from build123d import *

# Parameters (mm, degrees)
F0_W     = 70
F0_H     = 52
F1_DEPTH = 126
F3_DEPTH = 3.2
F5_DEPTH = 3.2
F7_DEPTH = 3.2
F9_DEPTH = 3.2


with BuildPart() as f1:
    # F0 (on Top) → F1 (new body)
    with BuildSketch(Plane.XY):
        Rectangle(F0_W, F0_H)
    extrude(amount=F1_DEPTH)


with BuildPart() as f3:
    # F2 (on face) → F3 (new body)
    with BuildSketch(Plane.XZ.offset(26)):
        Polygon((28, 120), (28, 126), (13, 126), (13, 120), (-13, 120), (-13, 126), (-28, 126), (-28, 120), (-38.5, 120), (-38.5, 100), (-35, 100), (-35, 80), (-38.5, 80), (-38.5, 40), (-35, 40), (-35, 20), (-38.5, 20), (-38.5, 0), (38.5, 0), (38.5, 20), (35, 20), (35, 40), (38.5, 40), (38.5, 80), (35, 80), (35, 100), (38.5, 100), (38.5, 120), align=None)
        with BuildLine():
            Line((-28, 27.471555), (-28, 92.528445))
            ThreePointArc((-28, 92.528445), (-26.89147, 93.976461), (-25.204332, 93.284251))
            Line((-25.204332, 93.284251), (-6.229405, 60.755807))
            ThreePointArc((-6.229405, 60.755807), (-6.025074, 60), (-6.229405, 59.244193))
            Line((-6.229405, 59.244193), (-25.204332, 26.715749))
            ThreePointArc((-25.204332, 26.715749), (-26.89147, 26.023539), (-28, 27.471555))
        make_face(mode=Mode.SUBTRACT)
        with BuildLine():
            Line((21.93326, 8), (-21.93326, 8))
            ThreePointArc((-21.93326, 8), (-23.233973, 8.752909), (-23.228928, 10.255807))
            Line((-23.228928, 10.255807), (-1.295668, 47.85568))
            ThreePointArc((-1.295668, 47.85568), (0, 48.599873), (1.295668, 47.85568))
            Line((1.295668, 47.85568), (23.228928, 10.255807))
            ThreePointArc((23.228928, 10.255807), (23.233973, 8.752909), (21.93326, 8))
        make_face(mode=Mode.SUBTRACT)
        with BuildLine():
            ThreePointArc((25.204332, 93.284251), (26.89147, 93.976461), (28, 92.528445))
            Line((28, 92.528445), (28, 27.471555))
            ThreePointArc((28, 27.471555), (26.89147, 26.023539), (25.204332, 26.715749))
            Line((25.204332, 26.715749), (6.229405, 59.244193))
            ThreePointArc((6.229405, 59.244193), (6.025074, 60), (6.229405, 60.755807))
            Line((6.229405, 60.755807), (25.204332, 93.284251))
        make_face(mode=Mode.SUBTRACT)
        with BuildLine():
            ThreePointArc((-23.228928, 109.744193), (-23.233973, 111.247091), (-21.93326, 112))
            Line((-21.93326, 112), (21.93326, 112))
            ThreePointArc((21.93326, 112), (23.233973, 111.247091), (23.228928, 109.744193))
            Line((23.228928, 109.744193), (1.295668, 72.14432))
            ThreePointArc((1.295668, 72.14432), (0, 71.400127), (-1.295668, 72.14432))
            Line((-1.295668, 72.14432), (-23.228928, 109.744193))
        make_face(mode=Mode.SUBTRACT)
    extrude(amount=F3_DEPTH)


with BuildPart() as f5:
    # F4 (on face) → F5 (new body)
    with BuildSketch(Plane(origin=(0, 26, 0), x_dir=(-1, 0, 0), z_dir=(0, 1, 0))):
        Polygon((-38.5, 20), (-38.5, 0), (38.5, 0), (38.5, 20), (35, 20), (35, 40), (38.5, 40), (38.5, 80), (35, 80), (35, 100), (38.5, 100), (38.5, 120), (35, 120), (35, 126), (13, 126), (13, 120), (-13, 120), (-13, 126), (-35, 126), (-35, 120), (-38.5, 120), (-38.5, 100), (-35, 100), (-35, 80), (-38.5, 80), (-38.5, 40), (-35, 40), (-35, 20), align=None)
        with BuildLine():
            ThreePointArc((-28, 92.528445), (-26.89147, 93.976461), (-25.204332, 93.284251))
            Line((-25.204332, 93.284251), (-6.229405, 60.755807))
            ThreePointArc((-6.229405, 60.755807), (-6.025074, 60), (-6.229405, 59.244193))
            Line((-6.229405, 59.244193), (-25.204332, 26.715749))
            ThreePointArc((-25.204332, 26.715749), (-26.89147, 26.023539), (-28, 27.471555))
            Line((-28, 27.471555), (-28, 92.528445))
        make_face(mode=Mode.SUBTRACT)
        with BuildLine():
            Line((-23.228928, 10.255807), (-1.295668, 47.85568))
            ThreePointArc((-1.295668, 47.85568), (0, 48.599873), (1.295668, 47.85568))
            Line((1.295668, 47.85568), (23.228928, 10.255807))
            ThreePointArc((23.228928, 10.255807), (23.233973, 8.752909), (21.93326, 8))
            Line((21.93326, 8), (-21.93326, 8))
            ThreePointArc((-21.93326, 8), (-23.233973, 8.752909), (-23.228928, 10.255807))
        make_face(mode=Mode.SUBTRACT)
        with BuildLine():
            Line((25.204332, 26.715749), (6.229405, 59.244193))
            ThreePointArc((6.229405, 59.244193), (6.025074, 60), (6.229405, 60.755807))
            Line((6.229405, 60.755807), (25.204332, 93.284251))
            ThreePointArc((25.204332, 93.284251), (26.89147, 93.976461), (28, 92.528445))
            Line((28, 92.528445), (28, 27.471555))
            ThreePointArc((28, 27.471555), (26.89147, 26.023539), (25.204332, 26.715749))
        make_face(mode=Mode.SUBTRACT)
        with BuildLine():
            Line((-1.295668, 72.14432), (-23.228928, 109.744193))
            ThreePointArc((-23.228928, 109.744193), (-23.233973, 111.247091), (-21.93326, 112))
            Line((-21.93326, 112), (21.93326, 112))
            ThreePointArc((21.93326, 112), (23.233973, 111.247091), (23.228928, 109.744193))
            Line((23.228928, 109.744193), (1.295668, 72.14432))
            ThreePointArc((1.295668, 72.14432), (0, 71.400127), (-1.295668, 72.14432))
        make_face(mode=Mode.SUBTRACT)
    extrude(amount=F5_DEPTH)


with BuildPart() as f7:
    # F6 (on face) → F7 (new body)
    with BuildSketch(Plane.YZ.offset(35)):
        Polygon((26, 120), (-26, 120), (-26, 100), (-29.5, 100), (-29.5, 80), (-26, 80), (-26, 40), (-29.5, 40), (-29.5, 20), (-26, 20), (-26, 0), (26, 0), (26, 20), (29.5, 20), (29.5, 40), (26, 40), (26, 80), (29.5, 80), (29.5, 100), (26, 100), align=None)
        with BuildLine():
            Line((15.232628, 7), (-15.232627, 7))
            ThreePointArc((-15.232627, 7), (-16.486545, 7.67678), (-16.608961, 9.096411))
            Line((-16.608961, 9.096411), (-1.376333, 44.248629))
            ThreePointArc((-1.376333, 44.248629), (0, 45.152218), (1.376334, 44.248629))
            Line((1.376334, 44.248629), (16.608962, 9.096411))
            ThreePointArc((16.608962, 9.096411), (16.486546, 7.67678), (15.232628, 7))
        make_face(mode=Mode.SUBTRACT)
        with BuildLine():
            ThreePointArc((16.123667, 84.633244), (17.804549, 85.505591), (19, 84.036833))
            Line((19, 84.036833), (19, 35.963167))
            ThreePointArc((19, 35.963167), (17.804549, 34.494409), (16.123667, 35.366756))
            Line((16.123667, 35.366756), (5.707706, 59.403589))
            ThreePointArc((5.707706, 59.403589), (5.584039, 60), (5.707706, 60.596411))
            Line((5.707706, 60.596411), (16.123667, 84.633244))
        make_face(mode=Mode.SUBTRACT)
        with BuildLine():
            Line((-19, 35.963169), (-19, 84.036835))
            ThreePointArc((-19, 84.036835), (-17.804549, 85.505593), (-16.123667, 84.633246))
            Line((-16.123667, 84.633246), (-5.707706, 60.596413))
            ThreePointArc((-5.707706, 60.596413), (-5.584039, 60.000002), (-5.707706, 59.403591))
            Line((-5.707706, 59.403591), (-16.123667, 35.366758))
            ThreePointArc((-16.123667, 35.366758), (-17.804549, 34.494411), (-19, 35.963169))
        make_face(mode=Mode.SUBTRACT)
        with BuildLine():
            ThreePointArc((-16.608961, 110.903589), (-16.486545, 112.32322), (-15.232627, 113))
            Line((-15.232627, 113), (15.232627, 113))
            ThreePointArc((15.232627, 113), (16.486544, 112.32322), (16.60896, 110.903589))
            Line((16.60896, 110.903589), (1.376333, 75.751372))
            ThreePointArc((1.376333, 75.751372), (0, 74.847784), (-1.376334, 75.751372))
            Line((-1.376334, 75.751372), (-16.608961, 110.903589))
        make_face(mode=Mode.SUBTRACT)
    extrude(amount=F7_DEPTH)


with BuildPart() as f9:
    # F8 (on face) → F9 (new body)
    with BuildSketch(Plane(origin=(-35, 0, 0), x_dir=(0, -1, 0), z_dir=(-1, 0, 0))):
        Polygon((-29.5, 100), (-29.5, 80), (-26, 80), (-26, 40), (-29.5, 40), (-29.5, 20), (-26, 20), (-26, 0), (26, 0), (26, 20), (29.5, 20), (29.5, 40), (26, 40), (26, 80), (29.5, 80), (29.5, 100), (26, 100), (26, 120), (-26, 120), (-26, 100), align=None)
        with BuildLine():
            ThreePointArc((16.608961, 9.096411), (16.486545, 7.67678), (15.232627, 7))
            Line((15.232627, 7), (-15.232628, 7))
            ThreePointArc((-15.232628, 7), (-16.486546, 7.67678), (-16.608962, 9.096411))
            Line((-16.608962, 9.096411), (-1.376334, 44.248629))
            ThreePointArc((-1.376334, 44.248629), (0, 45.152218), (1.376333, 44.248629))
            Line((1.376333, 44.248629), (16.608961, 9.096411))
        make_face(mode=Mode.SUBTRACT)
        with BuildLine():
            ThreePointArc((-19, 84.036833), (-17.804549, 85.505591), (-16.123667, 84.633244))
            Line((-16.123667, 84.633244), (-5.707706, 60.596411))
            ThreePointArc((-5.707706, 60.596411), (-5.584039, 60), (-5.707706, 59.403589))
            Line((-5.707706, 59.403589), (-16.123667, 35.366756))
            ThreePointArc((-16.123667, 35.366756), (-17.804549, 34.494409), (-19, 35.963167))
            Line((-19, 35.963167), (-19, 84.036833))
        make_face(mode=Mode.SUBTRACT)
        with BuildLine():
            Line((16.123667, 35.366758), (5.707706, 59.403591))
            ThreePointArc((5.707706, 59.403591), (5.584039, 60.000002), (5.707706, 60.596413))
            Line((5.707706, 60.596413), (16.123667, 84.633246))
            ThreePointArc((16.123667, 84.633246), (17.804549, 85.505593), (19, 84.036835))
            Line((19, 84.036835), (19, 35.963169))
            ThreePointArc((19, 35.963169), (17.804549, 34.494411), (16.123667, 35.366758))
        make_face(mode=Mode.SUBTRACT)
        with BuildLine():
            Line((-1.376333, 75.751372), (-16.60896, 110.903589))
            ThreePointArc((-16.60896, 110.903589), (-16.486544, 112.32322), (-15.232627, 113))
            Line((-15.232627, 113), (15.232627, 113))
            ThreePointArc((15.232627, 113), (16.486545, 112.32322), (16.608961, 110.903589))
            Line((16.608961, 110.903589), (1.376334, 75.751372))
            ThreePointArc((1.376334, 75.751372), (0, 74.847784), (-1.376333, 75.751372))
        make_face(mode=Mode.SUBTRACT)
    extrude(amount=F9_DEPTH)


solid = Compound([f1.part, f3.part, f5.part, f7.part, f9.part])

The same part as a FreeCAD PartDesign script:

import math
import FreeCAD as App
import Part
import Sketcher
from FreeCAD import Vector
Q = App.Units.Quantity


def add_polygon(sketch, points):
    """Adds a closed chain of lines whose ends are joined by coincident constraints."""
    first, n = sketch.GeometryCount, len(points)
    for a, b in zip(points, points[1:] + points[:1]):
        sketch.addGeometry(Part.LineSegment(App.Vector(*a, 0), App.Vector(*b, 0)), False)
    for i in range(n):
        sketch.addConstraint(Sketcher.Constraint("Coincident", first + i, 2, first + (i + 1) % n, 1))

doc = App.newDocument("Part")
params = doc.addObject("Spreadsheet::Sheet", "Params")
for row, (alias, value) in enumerate([
    ("sketch1_width", "70 mm"),
    ("sketch1_height", "52 mm"),
    ("pad1_length", "126 mm"),
    ("sketch2_radius", "1.5 mm"),
    ("sketch2_width", "15 mm"),
    ("sketch2_width2", "26 mm"),
    ("sketch2_width3", "77 mm"),
    ("sketch2_height", "6 mm"),
    ("pad2_length", "3.2 mm"),
    ("sketch3_radius", "1.5 mm"),
    ("sketch3_width", "77 mm"),
    ("sketch3_width2", "22 mm"),
    ("sketch3_width3", "26 mm"),
    ("sketch3_height", "20 mm"),
    ("pad3_length", "3.2 mm"),
    ("sketch4_radius", "1.5 mm"),
    ("sketch4_width", "52 mm"),
    ("sketch4_height", "20 mm"),
    ("sketch4_height2", "40 mm"),
    ("sketch4_width2", "3.5 mm"),
    ("pad4_length", "3.2 mm"),
    ("sketch5_radius", "1.5 mm"),
    ("sketch5_width", "52 mm"),
    ("sketch5_height", "20 mm"),
    ("sketch5_height2", "40 mm"),
    ("sketch5_width2", "3.5 mm"),
    ("pad5_length", "3.2 mm"),
], start=1):
    params.set(f"A{row}", alias)
    params.set(f"B{row}", "=" + value)
    params.setAlias(f"B{row}", alias)

body = doc.addObject("PartDesign::Body", "Body")

# Sketch on XY plane
sketch1 = body.newObject("Sketcher::SketchObject", "Sketch")
sketch1.AttachmentSupport = (doc.getObject("XY_Plane"), [""])
sketch1.MapMode = "FlatFace"
add_polygon(sketch1, [(-35, 26), (-35, -26), (35, -26), (35, 26)])  # lines 0-3
sketch1.addConstraint(Sketcher.Constraint("Vertical", 0))
sketch1.addConstraint(Sketcher.Constraint("Horizontal", 1))
sketch1.addConstraint(Sketcher.Constraint("Vertical", 2))
sketch1.addConstraint(Sketcher.Constraint("Horizontal", 3))
sketch1.addConstraint(Sketcher.Constraint("Symmetric", 0, 2, 2, 2, -1, 1))
sketch1.addConstraint(Sketcher.Constraint("DistanceX", 1, 1, 1, 2, Q("70 mm")))
sketch1.addConstraint(Sketcher.Constraint("DistanceY", 0, 2, 0, 1, Q("52 mm")))
sketch1.setExpression("Constraints[9]", "Params.sketch1_width")
sketch1.setExpression("Constraints[10]", "Params.sketch1_height")
pad1 = body.newObject("PartDesign::Pad", "Pad")
pad1.Profile = sketch1
pad1.setExpression("Length", "Params.pad1_length")
body2 = doc.addObject("PartDesign::Body", "Body001")

# Sketch on XZ plane
sketch2 = body2.newObject("Sketcher::SketchObject", "Sketch001")
sketch2.AttachmentSupport = (doc.getObject("XZ_Plane001"), [""])
sketch2.MapMode = "FlatFace"
sketch2.AttachmentOffset = App.Placement(Vector(0, 0, 26), App.Rotation())
add_polygon(sketch2, [(28, 120), (28, 126), (13, 126), (13, 120), (-13, 120), (-13, 126), (-28, 126), (-28, 120), (-38.5, 120), (-38.5, 100), (-35, 100), (-35, 80), (-38.5, 80), (-38.5, 40), (-35, 40), (-35, 20), (-38.5, 20), (-38.5, 0), (38.5, 0), (38.5, 20), (35, 20), (35, 40), (38.5, 40), (38.5, 80), (35, 80), (35, 100), (38.5, 100), (38.5, 120)])  # lines 0-27
sketch2.addGeometry(Part.ArcOfCircle(Part.Circle(Vector(-26.5, 27.5, 0), Vector(0, 0, 1), 1.5), math.radians(-180), math.radians(-30)), False)  # 28
sketch2.addGeometry(Part.LineSegment(Vector(-28, 27.5, 0), Vector(-28, 92.5, 0)), False)  # 29
sketch2.addGeometry(Part.ArcOfCircle(Part.Circle(Vector(-26.5, 92.5, 0), Vector(0, 0, 1), 1.5), math.radians(30), math.radians(180)), False)  # 30
sketch2.addGeometry(Part.LineSegment(Vector(-25.2, 93.3, 0), Vector(-6.2, 60.8, 0)), False)  # 31
sketch2.addGeometry(Part.ArcOfCircle(Part.Circle(Vector(-7.5, 60, 0), Vector(0, 0, 1), 1.5), math.radians(-30), math.radians(30)), False)  # 32
sketch2.addGeometry(Part.LineSegment(Vector(-6.2, 59.2, 0), Vector(-25.2, 26.7, 0)), False)  # 33
sketch2.addGeometry(Part.ArcOfCircle(Part.Circle(Vector(21.9, 9.5, 0), Vector(0, 0, 1), 1.5), math.radians(-90), math.radians(30)), False)  # 34
sketch2.addGeometry(Part.LineSegment(Vector(21.9, 8, 0), Vector(-21.9, 8, 0)), False)  # 35
sketch2.addGeometry(Part.ArcOfCircle(Part.Circle(Vector(-21.9, 9.5, 0), Vector(0, 0, 1), 1.5), math.radians(150), math.radians(270)), False)  # 36
sketch2.addGeometry(Part.LineSegment(Vector(-23.2, 10.3, 0), Vector(-1.3, 47.9, 0)), False)  # 37
sketch2.addGeometry(Part.ArcOfCircle(Part.Circle(Vector(0, 47.1, 0), Vector(0, 0, 1), 1.5), math.radians(30), math.radians(150)), False)  # 38
sketch2.addGeometry(Part.LineSegment(Vector(1.3, 47.9, 0), Vector(23.2, 10.3, 0)), False)  # 39
sketch2.addGeometry(Part.LineSegment(Vector(6.2, 60.8, 0), Vector(25.2, 93.3, 0)), False)  # 40
sketch2.addGeometry(Part.ArcOfCircle(Part.Circle(Vector(26.5, 92.5, 0), Vector(0, 0, 1), 1.5), math.radians(0), math.radians(150)), False)  # 41
sketch2.addGeometry(Part.LineSegment(Vector(28, 92.5, 0), Vector(28, 27.5, 0)), False)  # 42
sketch2.addGeometry(Part.ArcOfCircle(Part.Circle(Vector(26.5, 27.5, 0), Vector(0, 0, 1), 1.5), math.radians(-150), math.radians(0)), False)  # 43
sketch2.addGeometry(Part.LineSegment(Vector(25.2, 26.7, 0), Vector(6.2, 59.2, 0)), False)  # 44
sketch2.addGeometry(Part.ArcOfCircle(Part.Circle(Vector(7.5, 60, 0), Vector(0, 0, 1), 1.5), math.radians(150), math.radians(210)), False)  # 45
sketch2.addGeometry(Part.LineSegment(Vector(-1.3, 72.1, 0), Vector(-23.2, 109.7, 0)), False)  # 46
sketch2.addGeometry(Part.ArcOfCircle(Part.Circle(Vector(-21.9, 110.5, 0), Vector(0, 0, 1), 1.5), math.radians(90), math.radians(210)), False)  # 47
sketch2.addGeometry(Part.LineSegment(Vector(-21.9, 112, 0), Vector(21.9, 112, 0)), False)  # 48
sketch2.addGeometry(Part.ArcOfCircle(Part.Circle(Vector(21.9, 110.5, 0), Vector(0, 0, 1), 1.5), math.radians(-30), math.radians(90)), False)  # 49
sketch2.addGeometry(Part.LineSegment(Vector(23.2, 109.7, 0), Vector(1.3, 72.1, 0)), False)  # 50
sketch2.addGeometry(Part.ArcOfCircle(Part.Circle(Vector(0, 72.9, 0), Vector(0, 0, 1), 1.5), math.radians(-150), math.radians(-30)), False)  # 51
sketch2.addConstraint(Sketcher.Constraint("Tangent", 28, 1, 29, 1))
sketch2.addConstraint(Sketcher.Constraint("Tangent", 29, 2, 30, 2))
sketch2.addConstraint(Sketcher.Constraint("Tangent", 30, 1, 31, 1))
sketch2.addConstraint(Sketcher.Constraint("Tangent", 31, 2, 32, 2))
sketch2.addConstraint(Sketcher.Constraint("Tangent", 32, 1, 33, 1))
sketch2.addConstraint(Sketcher.Constraint("Tangent", 33, 2, 28, 2))
sketch2.addConstraint(Sketcher.Constraint("Tangent", 34, 1, 35, 1))
sketch2.addConstraint(Sketcher.Constraint("Tangent", 35, 2, 36, 2))
sketch2.addConstraint(Sketcher.Constraint("Tangent", 36, 1, 37, 1))
sketch2.addConstraint(Sketcher.Constraint("Tangent", 37, 2, 38, 2))
sketch2.addConstraint(Sketcher.Constraint("Tangent", 38, 1, 39, 1))
sketch2.addConstraint(Sketcher.Constraint("Tangent", 39, 2, 34, 2))
sketch2.addConstraint(Sketcher.Constraint("Tangent", 40, 2, 41, 2))
sketch2.addConstraint(Sketcher.Constraint("Tangent", 41, 1, 42, 1))
sketch2.addConstraint(Sketcher.Constraint("Tangent", 42, 2, 43, 2))
sketch2.addConstraint(Sketcher.Constraint("Tangent", 43, 1, 44, 1))
sketch2.addConstraint(Sketcher.Constraint("Tangent", 44, 2, 45, 2))
sketch2.addConstraint(Sketcher.Constraint("Tangent", 45, 1, 40, 1))
sketch2.addConstraint(Sketcher.Constraint("Tangent", 46, 2, 47, 2))
sketch2.addConstraint(Sketcher.Constraint("Tangent", 47, 1, 48, 1))
sketch2.addConstraint(Sketcher.Constraint("Tangent", 48, 2, 49, 2))
sketch2.addConstraint(Sketcher.Constraint("Tangent", 49, 1, 50, 1))
sketch2.addConstraint(Sketcher.Constraint("Tangent", 50, 2, 51, 2))
sketch2.addConstraint(Sketcher.Constraint("Tangent", 51, 1, 46, 1))
sketch2.addConstraint(Sketcher.Constraint("Vertical", 0))
sketch2.addConstraint(Sketcher.Constraint("Horizontal", 1))
sketch2.addConstraint(Sketcher.Constraint("Vertical", 2))
sketch2.addConstraint(Sketcher.Constraint("Horizontal", 3))
sketch2.addConstraint(Sketcher.Constraint("Vertical", 4))
sketch2.addConstraint(Sketcher.Constraint("Horizontal", 5))
sketch2.addConstraint(Sketcher.Constraint("Vertical", 6))
sketch2.addConstraint(Sketcher.Constraint("Horizontal", 7))
sketch2.addConstraint(Sketcher.Constraint("Vertical", 8))
sketch2.addConstraint(Sketcher.Constraint("Horizontal", 9))
sketch2.addConstraint(Sketcher.Constraint("Vertical", 10))
sketch2.addConstraint(Sketcher.Constraint("Horizontal", 11))
sketch2.addConstraint(Sketcher.Constraint("Vertical", 12))
sketch2.addConstraint(Sketcher.Constraint("Horizontal", 13))
sketch2.addConstraint(Sketcher.Constraint("Vertical", 14))
sketch2.addConstraint(Sketcher.Constraint("Horizontal", 15))
sketch2.addConstraint(Sketcher.Constraint("Vertical", 16))
sketch2.addConstraint(Sketcher.Constraint("Horizontal", 17))
sketch2.addConstraint(Sketcher.Constraint("Vertical", 18))
sketch2.addConstraint(Sketcher.Constraint("Horizontal", 19))
sketch2.addConstraint(Sketcher.Constraint("Vertical", 20))
sketch2.addConstraint(Sketcher.Constraint("Horizontal", 21))
sketch2.addConstraint(Sketcher.Constraint("Vertical", 22))
sketch2.addConstraint(Sketcher.Constraint("Horizontal", 23))
sketch2.addConstraint(Sketcher.Constraint("Vertical", 24))
sketch2.addConstraint(Sketcher.Constraint("Horizontal", 25))
sketch2.addConstraint(Sketcher.Constraint("Vertical", 26))
sketch2.addConstraint(Sketcher.Constraint("Horizontal", 27))
sketch2.addConstraint(Sketcher.Constraint("Vertical", 29))
sketch2.addConstraint(Sketcher.Constraint("Horizontal", 35))
sketch2.addConstraint(Sketcher.Constraint("Vertical", 42))
sketch2.addConstraint(Sketcher.Constraint("Horizontal", 48))
sketch2.addConstraint(Sketcher.Constraint("Equal", 28, 30))
sketch2.addConstraint(Sketcher.Constraint("Equal", 30, 34))
sketch2.addConstraint(Sketcher.Constraint("Equal", 34, 36))
sketch2.addConstraint(Sketcher.Constraint("Equal", 36, 38))
sketch2.addConstraint(Sketcher.Constraint("Equal", 38, 41))
sketch2.addConstraint(Sketcher.Constraint("Equal", 41, 43))
sketch2.addConstraint(Sketcher.Constraint("Equal", 32, 45))
sketch2.addConstraint(Sketcher.Constraint("Equal", 43, 47))
sketch2.addConstraint(Sketcher.Constraint("Equal", 47, 49))
sketch2.addConstraint(Sketcher.Constraint("Equal", 49, 51))
sketch2.addConstraint(Sketcher.Constraint("Symmetric", 16, 2, 17, 2, -1, 1))
sketch2.addConstraint(Sketcher.Constraint("Symmetric", 30, 3, 41, 3, -2))
sketch2.addConstraint(Sketcher.Constraint("Symmetric", 32, 3, 45, 3, -2))
sketch2.addConstraint(Sketcher.Constraint("Symmetric", 1, 2, 4, 2, -2))
sketch2.addConstraint(Sketcher.Constraint("Symmetric", 14, 2, 19, 2, -2))
sketch2.addConstraint(Sketcher.Constraint("Symmetric", 12, 2, 21, 2, -2))
sketch2.addConstraint(Sketcher.Constraint("Symmetric", 10, 2, 23, 2, -2))
sketch2.addConstraint(Sketcher.Constraint("Symmetric", 8, 2, 25, 2, -2))
sketch2.addConstraint(Sketcher.Constraint("Symmetric", 6, 2, 27, 2, -2))
sketch2.addConstraint(Sketcher.Constraint("Symmetric", 37, 2, 38, 1, -2))
sketch2.addConstraint(Sketcher.Constraint("Symmetric", 46, 2, 49, 1, -2))
sketch2.addConstraint(Sketcher.Constraint("Parallel", 33, 37))
sketch2.addConstraint(Sketcher.Constraint("Parallel", 31, 39))
sketch2.addConstraint(Sketcher.Constraint("Parallel", 39, 44))
sketch2.addConstraint(Sketcher.Constraint("Parallel", 44, 46))
sketch2.addConstraint(Sketcher.Constraint("Horizontal", 3, 2, 6, 2))
sketch2.addConstraint(Sketcher.Constraint("Vertical", 36, 3, 47, 3))
sketch2.addConstraint(Sketcher.Constraint("Vertical", 8, 2, 11, 2))
sketch2.addConstraint(Sketcher.Constraint("Vertical", 10, 2, 13, 2))
sketch2.addConstraint(Sketcher.Constraint("Vertical", 12, 2, 15, 2))
sketch2.addConstraint(Sketcher.Constraint("Vertical", 6, 2, 28, 1))
sketch2.addConstraint(Sketcher.Constraint("Equal", 8, 10))
sketch2.addConstraint(Sketcher.Constraint("Equal", 10, 14))
sketch2.addConstraint(Sketcher.Constraint("Equal", 14, 16))
sketch2.addConstraint(Sketcher.Constraint("Radius", 28, Q("1.5 mm")))
sketch2.addConstraint(Sketcher.Constraint("DistanceX", 1, 2, 1, 1, Q("15 mm")))
sketch2.addConstraint(Sketcher.Constraint("DistanceX", 3, 2, 3, 1, Q("26 mm")))
sketch2.addConstraint(Sketcher.Constraint("DistanceX", 17, 1, 17, 2, Q("77 mm")))
sketch2.addConstraint(Sketcher.Constraint("DistanceY", 0, 1, 0, 2, Q("6 mm")))
sketch2.addConstraint(Sketcher.Constraint("DistanceY", 8, 2, 8, 1, Q("20 mm")))
sketch2.addConstraint(Sketcher.Constraint("DistanceY", 12, 2, 12, 1, Q("40 mm")))
sketch2.addConstraint(Sketcher.Constraint("DistanceX", 9, 1, 9, 2, Q("3.5 mm")))
sketch2.addConstraint(Sketcher.Constraint("DistanceY", -1, 1, 32, 3, Q("60 mm")))
sketch2.addConstraint(Sketcher.Constraint("DistanceY", -1, 1, 34, 1, Q("8 mm")))
sketch2.addConstraint(Sketcher.Constraint("DistanceY", -1, 1, 47, 1, Q("112 mm")))
sketch2.addConstraint(Sketcher.Constraint("Radius", 32, Q("1.500006 mm")))
sketch2.addConstraint(Sketcher.Constraint("Distance", 31, Q("37.6583 mm")))
sketch2.addConstraint(Sketcher.Constraint("DistanceX", 35, 2, 35, 1, Q("43.86652 mm")))
sketch2.addConstraint(Sketcher.Constraint("DistanceY", 29, 1, 29, 2, Q("65.05689 mm")))
sketch2.setExpression("Constraints[118]", "Params.sketch2_radius")
sketch2.setExpression("Constraints[119]", "Params.sketch2_width")
sketch2.setExpression("Constraints[120]", "Params.sketch2_width2")
sketch2.setExpression("Constraints[121]", "Params.sketch2_width3")
sketch2.setExpression("Constraints[122]", "Params.sketch2_height")
pad2 = body2.newObject("PartDesign::Pad", "Pad001")
pad2.Profile = sketch2
pad2.setExpression("Length", "Params.pad2_length")
body3 = doc.addObject("PartDesign::Body", "Body002")

# Sketch on XZ plane
sketch3 = body3.newObject("Sketcher::SketchObject", "Sketch002")
sketch3.AttachmentSupport = (doc.getObject("XZ_Plane002"), [""])
sketch3.MapMode = "FlatFace"
sketch3.AttachmentOffset = App.Placement(Vector(0, 0, -26), App.Rotation())
add_polygon(sketch3, [(38.5, 20), (38.5, 0), (-38.5, 0), (-38.5, 20), (-35, 20), (-35, 40), (-38.5, 40), (-38.5, 80), (-35, 80), (-35, 100), (-38.5, 100), (-38.5, 120), (-35, 120), (-35, 126), (-13, 126), (-13, 120), (13, 120), (13, 126), (35, 126), (35, 120), (38.5, 120), (38.5, 100), (35, 100), (35, 80), (38.5, 80), (38.5, 40), (35, 40), (35, 20)])  # lines 0-27
sketch3.addGeometry(Part.LineSegment(Vector(28, 27.5, 0), Vector(28, 92.5, 0)), False)  # 28
sketch3.addGeometry(Part.ArcOfCircle(Part.Circle(Vector(26.5, 92.5, 0), Vector(0, 0, 1), 1.5), math.radians(0), math.radians(150)), False)  # 29
sketch3.addGeometry(Part.LineSegment(Vector(25.2, 93.3, 0), Vector(6.2, 60.8, 0)), False)  # 30
sketch3.addGeometry(Part.ArcOfCircle(Part.Circle(Vector(7.5, 60, 0), Vector(0, 0, 1), 1.5), math.radians(150), math.radians(210)), False)  # 31
sketch3.addGeometry(Part.LineSegment(Vector(6.2, 59.2, 0), Vector(25.2, 26.7, 0)), False)  # 32
sketch3.addGeometry(Part.ArcOfCircle(Part.Circle(Vector(26.5, 27.5, 0), Vector(0, 0, 1), 1.5), math.radians(-150), math.radians(0)), False)  # 33
sketch3.addGeometry(Part.ArcOfCircle(Part.Circle(Vector(21.9, 9.5, 0), Vector(0, 0, 1), 1.5), math.radians(-90), math.radians(30)), False)  # 34
sketch3.addGeometry(Part.LineSegment(Vector(23.2, 10.3, 0), Vector(1.3, 47.9, 0)), False)  # 35
sketch3.addGeometry(Part.ArcOfCircle(Part.Circle(Vector(0, 47.1, 0), Vector(0, 0, 1), 1.5), math.radians(30), math.radians(150)), False)  # 36
sketch3.addGeometry(Part.LineSegment(Vector(-1.3, 47.9, 0), Vector(-23.2, 10.3, 0)), False)  # 37
sketch3.addGeometry(Part.ArcOfCircle(Part.Circle(Vector(-21.9, 9.5, 0), Vector(0, 0, 1), 1.5), math.radians(150), math.radians(270)), False)  # 38
sketch3.addGeometry(Part.LineSegment(Vector(-21.9, 8, 0), Vector(21.9, 8, 0)), False)  # 39
sketch3.addGeometry(Part.ArcOfCircle(Part.Circle(Vector(-26.5, 27.5, 0), Vector(0, 0, 1), 1.5), math.radians(-180), math.radians(-30)), False)  # 40
sketch3.addGeometry(Part.LineSegment(Vector(-25.2, 26.7, 0), Vector(-6.2, 59.2, 0)), False)  # 41
sketch3.addGeometry(Part.ArcOfCircle(Part.Circle(Vector(-7.5, 60, 0), Vector(0, 0, 1), 1.5), math.radians(-30), math.radians(30)), False)  # 42
sketch3.addGeometry(Part.LineSegment(Vector(-6.2, 60.8, 0), Vector(-25.2, 93.3, 0)), False)  # 43
sketch3.addGeometry(Part.ArcOfCircle(Part.Circle(Vector(-26.5, 92.5, 0), Vector(0, 0, 1), 1.5), math.radians(30), math.radians(180)), False)  # 44
sketch3.addGeometry(Part.LineSegment(Vector(-28, 92.5, 0), Vector(-28, 27.5, 0)), False)  # 45
sketch3.addGeometry(Part.ArcOfCircle(Part.Circle(Vector(0, 72.9, 0), Vector(0, 0, 1), 1.5), math.radians(-150), math.radians(-30)), False)  # 46
sketch3.addGeometry(Part.LineSegment(Vector(1.3, 72.1, 0), Vector(23.2, 109.7, 0)), False)  # 47
sketch3.addGeometry(Part.ArcOfCircle(Part.Circle(Vector(21.9, 110.5, 0), Vector(0, 0, 1), 1.5), math.radians(-30), math.radians(90)), False)  # 48
sketch3.addGeometry(Part.LineSegment(Vector(21.9, 112, 0), Vector(-21.9, 112, 0)), False)  # 49
sketch3.addGeometry(Part.ArcOfCircle(Part.Circle(Vector(-21.9, 110.5, 0), Vector(0, 0, 1), 1.5), math.radians(90), math.radians(210)), False)  # 50
sketch3.addGeometry(Part.LineSegment(Vector(-23.2, 109.7, 0), Vector(-1.3, 72.1, 0)), False)  # 51
sketch3.addConstraint(Sketcher.Constraint("Tangent", 28, 2, 29, 1))
sketch3.addConstraint(Sketcher.Constraint("Tangent", 29, 2, 30, 1))
sketch3.addConstraint(Sketcher.Constraint("Tangent", 30, 2, 31, 1))
sketch3.addConstraint(Sketcher.Constraint("Tangent", 31, 2, 32, 1))
sketch3.addConstraint(Sketcher.Constraint("Tangent", 32, 2, 33, 1))
sketch3.addConstraint(Sketcher.Constraint("Tangent", 33, 2, 28, 1))
sketch3.addConstraint(Sketcher.Constraint("Tangent", 34, 2, 35, 1))
sketch3.addConstraint(Sketcher.Constraint("Tangent", 35, 2, 36, 1))
sketch3.addConstraint(Sketcher.Constraint("Tangent", 36, 2, 37, 1))
sketch3.addConstraint(Sketcher.Constraint("Tangent", 37, 2, 38, 1))
sketch3.addConstraint(Sketcher.Constraint("Tangent", 38, 2, 39, 1))
sketch3.addConstraint(Sketcher.Constraint("Tangent", 39, 2, 34, 1))
sketch3.addConstraint(Sketcher.Constraint("Tangent", 40, 2, 41, 1))
sketch3.addConstraint(Sketcher.Constraint("Tangent", 41, 2, 42, 1))
sketch3.addConstraint(Sketcher.Constraint("Tangent", 42, 2, 43, 1))
sketch3.addConstraint(Sketcher.Constraint("Tangent", 43, 2, 44, 1))
sketch3.addConstraint(Sketcher.Constraint("Tangent", 44, 2, 45, 1))
sketch3.addConstraint(Sketcher.Constraint("Tangent", 45, 2, 40, 1))
sketch3.addConstraint(Sketcher.Constraint("Tangent", 46, 2, 47, 1))
sketch3.addConstraint(Sketcher.Constraint("Tangent", 47, 2, 48, 1))
sketch3.addConstraint(Sketcher.Constraint("Tangent", 48, 2, 49, 1))
sketch3.addConstraint(Sketcher.Constraint("Tangent", 49, 2, 50, 1))
sketch3.addConstraint(Sketcher.Constraint("Tangent", 50, 2, 51, 1))
sketch3.addConstraint(Sketcher.Constraint("Tangent", 51, 2, 46, 1))
sketch3.addConstraint(Sketcher.Constraint("Vertical", 0))
sketch3.addConstraint(Sketcher.Constraint("Horizontal", 1))
sketch3.addConstraint(Sketcher.Constraint("Vertical", 2))
sketch3.addConstraint(Sketcher.Constraint("Horizontal", 3))
sketch3.addConstraint(Sketcher.Constraint("Vertical", 4))
sketch3.addConstraint(Sketcher.Constraint("Horizontal", 5))
sketch3.addConstraint(Sketcher.Constraint("Vertical", 6))
sketch3.addConstraint(Sketcher.Constraint("Horizontal", 7))
sketch3.addConstraint(Sketcher.Constraint("Vertical", 8))
sketch3.addConstraint(Sketcher.Constraint("Horizontal", 9))
sketch3.addConstraint(Sketcher.Constraint("Vertical", 10))
sketch3.addConstraint(Sketcher.Constraint("Horizontal", 11))
sketch3.addConstraint(Sketcher.Constraint("Vertical", 12))
sketch3.addConstraint(Sketcher.Constraint("Horizontal", 13))
sketch3.addConstraint(Sketcher.Constraint("Vertical", 14))
sketch3.addConstraint(Sketcher.Constraint("Horizontal", 15))
sketch3.addConstraint(Sketcher.Constraint("Vertical", 16))
sketch3.addConstraint(Sketcher.Constraint("Horizontal", 17))
sketch3.addConstraint(Sketcher.Constraint("Vertical", 18))
sketch3.addConstraint(Sketcher.Constraint("Horizontal", 19))
sketch3.addConstraint(Sketcher.Constraint("Vertical", 20))
sketch3.addConstraint(Sketcher.Constraint("Horizontal", 21))
sketch3.addConstraint(Sketcher.Constraint("Vertical", 22))
sketch3.addConstraint(Sketcher.Constraint("Horizontal", 23))
sketch3.addConstraint(Sketcher.Constraint("Vertical", 24))
sketch3.addConstraint(Sketcher.Constraint("Horizontal", 25))
sketch3.addConstraint(Sketcher.Constraint("Vertical", 26))
sketch3.addConstraint(Sketcher.Constraint("Horizontal", 27))
sketch3.addConstraint(Sketcher.Constraint("Vertical", 28))
sketch3.addConstraint(Sketcher.Constraint("Horizontal", 39))
sketch3.addConstraint(Sketcher.Constraint("Vertical", 45))
sketch3.addConstraint(Sketcher.Constraint("Horizontal", 49))
sketch3.addConstraint(Sketcher.Constraint("Equal", 29, 33))
sketch3.addConstraint(Sketcher.Constraint("Equal", 33, 34))
sketch3.addConstraint(Sketcher.Constraint("Equal", 34, 36))
sketch3.addConstraint(Sketcher.Constraint("Equal", 36, 38))
sketch3.addConstraint(Sketcher.Constraint("Equal", 38, 40))
sketch3.addConstraint(Sketcher.Constraint("Equal", 31, 42))
sketch3.addConstraint(Sketcher.Constraint("Equal", 40, 44))
sketch3.addConstraint(Sketcher.Constraint("Equal", 44, 46))
sketch3.addConstraint(Sketcher.Constraint("Equal", 46, 48))
sketch3.addConstraint(Sketcher.Constraint("Equal", 48, 50))
sketch3.addConstraint(Sketcher.Constraint("Symmetric", 0, 2, 1, 2, -1, 1))
sketch3.addConstraint(Sketcher.Constraint("Symmetric", 33, 3, 40, 3, -2))
sketch3.addConstraint(Sketcher.Constraint("Symmetric", 31, 3, 42, 3, -2))
sketch3.addConstraint(Sketcher.Constraint("Symmetric", 13, 2, 16, 2, -2))
sketch3.addConstraint(Sketcher.Constraint("Symmetric", 11, 2, 18, 2, -2))
sketch3.addConstraint(Sketcher.Constraint("Symmetric", 9, 2, 20, 2, -2))
sketch3.addConstraint(Sketcher.Constraint("Symmetric", 7, 2, 22, 2, -2))
sketch3.addConstraint(Sketcher.Constraint("Symmetric", 5, 2, 24, 2, -2))
sketch3.addConstraint(Sketcher.Constraint("Symmetric", 3, 2, 26, 2, -2))
sketch3.addConstraint(Sketcher.Constraint("Symmetric", 35, 2, 36, 2, -2))
sketch3.addConstraint(Sketcher.Constraint("Symmetric", 47, 2, 50, 2, -2))
sketch3.addConstraint(Sketcher.Constraint("Parallel", 32, 35))
sketch3.addConstraint(Sketcher.Constraint("Parallel", 30, 37))
sketch3.addConstraint(Sketcher.Constraint("Parallel", 35, 43))
sketch3.addConstraint(Sketcher.Constraint("Parallel", 41, 47))
sketch3.addConstraint(Sketcher.Constraint("Horizontal", 11, 2, 14, 2))
sketch3.addConstraint(Sketcher.Constraint("Vertical", 34, 3, 48, 3))
sketch3.addConstraint(Sketcher.Constraint("Vertical", 2, 2, 5, 2))
sketch3.addConstraint(Sketcher.Constraint("Vertical", 4, 2, 7, 2))
sketch3.addConstraint(Sketcher.Constraint("Vertical", 6, 2, 9, 2))
sketch3.addConstraint(Sketcher.Constraint("Vertical", 8, 2, 11, 2))
sketch3.addConstraint(Sketcher.Constraint("Equal", 2, 4))
sketch3.addConstraint(Sketcher.Constraint("Equal", 4, 8))
sketch3.addConstraint(Sketcher.Constraint("Equal", 8, 10))
sketch3.addConstraint(Sketcher.Constraint("Radius", 29, Q("1.5 mm")))
sketch3.addConstraint(Sketcher.Constraint("DistanceX", 1, 2, 1, 1, Q("77 mm")))
sketch3.addConstraint(Sketcher.Constraint("DistanceX", 13, 1, 13, 2, Q("22 mm")))
sketch3.addConstraint(Sketcher.Constraint("DistanceX", 15, 1, 15, 2, Q("26 mm")))
sketch3.addConstraint(Sketcher.Constraint("DistanceY", 0, 2, 0, 1, Q("20 mm")))
sketch3.addConstraint(Sketcher.Constraint("DistanceY", 6, 1, 6, 2, Q("40 mm")))
sketch3.addConstraint(Sketcher.Constraint("DistanceY", 12, 1, 12, 2, Q("6 mm")))
sketch3.addConstraint(Sketcher.Constraint("DistanceY", -1, 1, 31, 3, Q("60 mm")))
sketch3.addConstraint(Sketcher.Constraint("DistanceX", -1, 1, 28, 2, Q("28 mm")))
sketch3.addConstraint(Sketcher.Constraint("DistanceY", -1, 1, 38, 2, Q("8 mm")))
sketch3.addConstraint(Sketcher.Constraint("DistanceY", -1, 1, 48, 2, Q("112 mm")))
sketch3.addConstraint(Sketcher.Constraint("Radius", 31, Q("1.500006 mm")))
sketch3.addConstraint(Sketcher.Constraint("Distance", 30, Q("37.6583 mm")))
sketch3.addConstraint(Sketcher.Constraint("DistanceX", 39, 1, 39, 2, Q("43.86652 mm")))
sketch3.addConstraint(Sketcher.Constraint("DistanceY", 28, 1, 28, 2, Q("65.05689 mm")))
sketch3.setExpression("Constraints[118]", "Params.sketch3_radius")
sketch3.setExpression("Constraints[119]", "Params.sketch3_width")
sketch3.setExpression("Constraints[120]", "Params.sketch3_width2")
sketch3.setExpression("Constraints[121]", "Params.sketch3_width3")
sketch3.setExpression("Constraints[122]", "Params.sketch3_height")
pad3 = body3.newObject("PartDesign::Pad", "Pad002")
pad3.Profile = sketch3
pad3.setExpression("Length", "Params.pad3_length")
pad3.Reversed = True
body4 = doc.addObject("PartDesign::Body", "Body003")

# Sketch on YZ plane
sketch4 = body4.newObject("Sketcher::SketchObject", "Sketch003")
sketch4.AttachmentSupport = (doc.getObject("YZ_Plane003"), [""])
sketch4.MapMode = "FlatFace"
sketch4.AttachmentOffset = App.Placement(Vector(0, 0, 35), App.Rotation())
add_polygon(sketch4, [(26, 120), (-26, 120), (-26, 100), (-29.5, 100), (-29.5, 80), (-26, 80), (-26, 40), (-29.5, 40), (-29.5, 20), (-26, 20), (-26, 0), (26, 0), (26, 20), (29.5, 20), (29.5, 40), (26, 40), (26, 80), (29.5, 80), (29.5, 100), (26, 100)])  # lines 0-19
sketch4.addGeometry(Part.ArcOfCircle(Part.Circle(Vector(15.2, 8.5, 0), Vector(0, 0, 1), 1.5), math.radians(-90), math.radians(23)), False)  # 20
sketch4.addGeometry(Part.LineSegment(Vector(15.2, 7, 0), Vector(-15.2, 7, 0)), False)  # 21
sketch4.addGeometry(Part.ArcOfCircle(Part.Circle(Vector(-15.2, 8.5, 0), Vector(0, 0, 1), 1.5), math.radians(157), math.radians(270)), False)  # 22
sketch4.addGeometry(Part.LineSegment(Vector(-16.6, 9.1, 0), Vector(-1.4, 44.2, 0)), False)  # 23
sketch4.addGeometry(Part.ArcOfCircle(Part.Circle(Vector(0, 43.7, 0), Vector(0, 0, 1), 1.5), math.radians(23), math.radians(157)), False)  # 24
sketch4.addGeometry(Part.LineSegment(Vector(1.4, 44.2, 0), Vector(16.6, 9.1, 0)), False)  # 25
sketch4.addGeometry(Part.LineSegment(Vector(5.7, 60.6, 0), Vector(16.1, 84.6, 0)), False)  # 26
sketch4.addGeometry(Part.ArcOfCircle(Part.Circle(Vector(17.5, 84, 0), Vector(0, 0, 1), 1.5), math.radians(0), math.radians(157)), False)  # 27
sketch4.addGeometry(Part.LineSegment(Vector(19, 84, 0), Vector(19, 36, 0)), False)  # 28
sketch4.addGeometry(Part.ArcOfCircle(Part.Circle(Vector(17.5, 36, 0), Vector(0, 0, 1), 1.5), math.radians(-157), math.radians(0)), False)  # 29
sketch4.addGeometry(Part.LineSegment(Vector(16.1, 35.4, 0), Vector(5.7, 59.4, 0)), False)  # 30
sketch4.addGeometry(Part.ArcOfCircle(Part.Circle(Vector(7.1, 60, 0), Vector(0, 0, 1), 1.5), math.radians(157), math.radians(203)), False)  # 31
sketch4.addGeometry(Part.ArcOfCircle(Part.Circle(Vector(-17.5, 36, 0), Vector(0, 0, 1), 1.5), math.radians(180), math.radians(337)), False)  # 32
sketch4.addGeometry(Part.LineSegment(Vector(-19, 36, 0), Vector(-19, 84, 0)), False)  # 33
sketch4.addGeometry(Part.ArcOfCircle(Part.Circle(Vector(-17.5, 84, 0), Vector(0, 0, 1), 1.5), math.radians(23), math.radians(180)), False)  # 34
sketch4.addGeometry(Part.LineSegment(Vector(-16.1, 84.6, 0), Vector(-5.7, 60.6, 0)), False)  # 35
sketch4.addGeometry(Part.ArcOfCircle(Part.Circle(Vector(-7.1, 60, 0), Vector(0, 0, 1), 1.5), math.radians(-23), math.radians(23)), False)  # 36
sketch4.addGeometry(Part.LineSegment(Vector(-5.7, 59.4, 0), Vector(-16.1, 35.4, 0)), False)  # 37
sketch4.addGeometry(Part.LineSegment(Vector(-1.4, 75.8, 0), Vector(-16.6, 110.9, 0)), False)  # 38
sketch4.addGeometry(Part.ArcOfCircle(Part.Circle(Vector(-15.2, 111.5, 0), Vector(0, 0, 1), 1.5), math.radians(90), math.radians(203)), False)  # 39
sketch4.addGeometry(Part.LineSegment(Vector(-15.2, 113, 0), Vector(15.2, 113, 0)), False)  # 40
sketch4.addGeometry(Part.ArcOfCircle(Part.Circle(Vector(15.2, 111.5, 0), Vector(0, 0, 1), 1.5), math.radians(-23), math.radians(90)), False)  # 41
sketch4.addGeometry(Part.LineSegment(Vector(16.6, 110.9, 0), Vector(1.4, 75.8, 0)), False)  # 42
sketch4.addGeometry(Part.ArcOfCircle(Part.Circle(Vector(0, 76.3, 0), Vector(0, 0, 1), 1.5), math.radians(-157), math.radians(-23)), False)  # 43
sketch4.addConstraint(Sketcher.Constraint("Tangent", 20, 1, 21, 1))
sketch4.addConstraint(Sketcher.Constraint("Tangent", 21, 2, 22, 2))
sketch4.addConstraint(Sketcher.Constraint("Tangent", 22, 1, 23, 1))
sketch4.addConstraint(Sketcher.Constraint("Tangent", 23, 2, 24, 2))
sketch4.addConstraint(Sketcher.Constraint("Tangent", 24, 1, 25, 1))
sketch4.addConstraint(Sketcher.Constraint("Tangent", 25, 2, 20, 2))
sketch4.addConstraint(Sketcher.Constraint("Tangent", 26, 2, 27, 2))
sketch4.addConstraint(Sketcher.Constraint("Tangent", 27, 1, 28, 1))
sketch4.addConstraint(Sketcher.Constraint("Tangent", 28, 2, 29, 2))
sketch4.addConstraint(Sketcher.Constraint("Tangent", 29, 1, 30, 1))
sketch4.addConstraint(Sketcher.Constraint("Tangent", 30, 2, 31, 2))
sketch4.addConstraint(Sketcher.Constraint("Tangent", 31, 1, 26, 1))
sketch4.addConstraint(Sketcher.Constraint("Tangent", 32, 1, 33, 1))
sketch4.addConstraint(Sketcher.Constraint("Tangent", 33, 2, 34, 2))
sketch4.addConstraint(Sketcher.Constraint("Tangent", 34, 1, 35, 1))
sketch4.addConstraint(Sketcher.Constraint("Tangent", 35, 2, 36, 2))
sketch4.addConstraint(Sketcher.Constraint("Tangent", 36, 1, 37, 1))
sketch4.addConstraint(Sketcher.Constraint("Tangent", 37, 2, 32, 2))
sketch4.addConstraint(Sketcher.Constraint("Tangent", 38, 2, 39, 2))
sketch4.addConstraint(Sketcher.Constraint("Tangent", 39, 1, 40, 1))
sketch4.addConstraint(Sketcher.Constraint("Tangent", 40, 2, 41, 2))
sketch4.addConstraint(Sketcher.Constraint("Tangent", 41, 1, 42, 1))
sketch4.addConstraint(Sketcher.Constraint("Tangent", 42, 2, 43, 2))
sketch4.addConstraint(Sketcher.Constraint("Tangent", 43, 1, 38, 1))
sketch4.addConstraint(Sketcher.Constraint("Horizontal", 0))
sketch4.addConstraint(Sketcher.Constraint("Vertical", 1))
sketch4.addConstraint(Sketcher.Constraint("Horizontal", 2))
sketch4.addConstraint(Sketcher.Constraint("Vertical", 3))
sketch4.addConstraint(Sketcher.Constraint("Horizontal", 4))
sketch4.addConstraint(Sketcher.Constraint("Vertical", 5))
sketch4.addConstraint(Sketcher.Constraint("Horizontal", 6))
sketch4.addConstraint(Sketcher.Constraint("Vertical", 7))
sketch4.addConstraint(Sketcher.Constraint("Horizontal", 8))
sketch4.addConstraint(Sketcher.Constraint("Vertical", 9))
sketch4.addConstraint(Sketcher.Constraint("Horizontal", 10))
sketch4.addConstraint(Sketcher.Constraint("Vertical", 11))
sketch4.addConstraint(Sketcher.Constraint("Horizontal", 12))
sketch4.addConstraint(Sketcher.Constraint("Vertical", 13))
sketch4.addConstraint(Sketcher.Constraint("Horizontal", 14))
sketch4.addConstraint(Sketcher.Constraint("Vertical", 15))
sketch4.addConstraint(Sketcher.Constraint("Horizontal", 16))
sketch4.addConstraint(Sketcher.Constraint("Vertical", 17))
sketch4.addConstraint(Sketcher.Constraint("Horizontal", 18))
sketch4.addConstraint(Sketcher.Constraint("Vertical", 19))
sketch4.addConstraint(Sketcher.Constraint("Horizontal", 21))
sketch4.addConstraint(Sketcher.Constraint("Vertical", 28))
sketch4.addConstraint(Sketcher.Constraint("Vertical", 33))
sketch4.addConstraint(Sketcher.Constraint("Horizontal", 40))
sketch4.addConstraint(Sketcher.Constraint("Equal", 20, 22))
sketch4.addConstraint(Sketcher.Constraint("Equal", 22, 24))
sketch4.addConstraint(Sketcher.Constraint("Equal", 24, 27))
sketch4.addConstraint(Sketcher.Constraint("Equal", 27, 29))
sketch4.addConstraint(Sketcher.Constraint("Equal", 29, 32))
sketch4.addConstraint(Sketcher.Constraint("Equal", 32, 34))
sketch4.addConstraint(Sketcher.Constraint("Equal", 31, 36))
sketch4.addConstraint(Sketcher.Constraint("Equal", 34, 39))
sketch4.addConstraint(Sketcher.Constraint("Equal", 39, 41))
sketch4.addConstraint(Sketcher.Constraint("Equal", 41, 43))
sketch4.addConstraint(Sketcher.Constraint("Symmetric", 9, 2, 10, 2, -1, 1))
sketch4.addConstraint(Sketcher.Constraint("Symmetric", 29, 3, 32, 3, -2))
sketch4.addConstraint(Sketcher.Constraint("Symmetric", 31, 3, 36, 3, -2))
sketch4.addConstraint(Sketcher.Constraint("Symmetric", 7, 2, 12, 2, -2))
sketch4.addConstraint(Sketcher.Constraint("Symmetric", 5, 2, 14, 2, -2))
sketch4.addConstraint(Sketcher.Constraint("Symmetric", 3, 2, 16, 2, -2))
sketch4.addConstraint(Sketcher.Constraint("Symmetric", 1, 2, 18, 2, -2))
sketch4.addConstraint(Sketcher.Constraint("Symmetric", 23, 2, 24, 1, -2))
sketch4.addConstraint(Sketcher.Constraint("Symmetric", 38, 2, 41, 1, -2))
sketch4.addConstraint(Sketcher.Constraint("Parallel", 23, 26))
sketch4.addConstraint(Sketcher.Constraint("Parallel", 25, 30))
sketch4.addConstraint(Sketcher.Constraint("Parallel", 30, 35))
sketch4.addConstraint(Sketcher.Constraint("Parallel", 35, 38))
sketch4.addConstraint(Sketcher.Constraint("Vertical", 22, 3, 39, 3))
sketch4.addConstraint(Sketcher.Constraint("Vertical", 1, 2, 4, 2))
sketch4.addConstraint(Sketcher.Constraint("Vertical", 3, 2, 6, 2))
sketch4.addConstraint(Sketcher.Constraint("Vertical", 5, 2, 8, 2))
sketch4.addConstraint(Sketcher.Constraint("Equal", 1, 3))
sketch4.addConstraint(Sketcher.Constraint("Equal", 3, 7))
sketch4.addConstraint(Sketcher.Constraint("Equal", 7, 9))
sketch4.addConstraint(Sketcher.Constraint("Radius", 20, Q("1.5 mm")))
sketch4.addConstraint(Sketcher.Constraint("DistanceX", 0, 2, 0, 1, Q("52 mm")))
sketch4.addConstraint(Sketcher.Constraint("DistanceY", 1, 2, 1, 1, Q("20 mm")))
sketch4.addConstraint(Sketcher.Constraint("DistanceY", 5, 2, 5, 1, Q("40 mm")))
sketch4.addConstraint(Sketcher.Constraint("DistanceX", 2, 2, 2, 1, Q("3.5 mm")))
sketch4.addConstraint(Sketcher.Constraint("DistanceY", -1, 1, 31, 3, Q("60 mm")))
sketch4.addConstraint(Sketcher.Constraint("DistanceY", -1, 1, 20, 1, Q("7 mm")))
sketch4.addConstraint(Sketcher.Constraint("DistanceX", -1, 1, 27, 1, Q("19 mm")))
sketch4.addConstraint(Sketcher.Constraint("DistanceY", -1, 1, 39, 1, Q("113 mm")))
sketch4.addConstraint(Sketcher.Constraint("Radius", 31, Q("1.499994 mm")))
sketch4.addConstraint(Sketcher.Constraint("DistanceX", 36, 3, 23, 2, Q("5.7077 mm")))
sketch4.addConstraint(Sketcher.Constraint("Distance", 23, Q("38.310722 mm")))
sketch4.addConstraint(Sketcher.Constraint("DistanceX", 21, 2, 21, 1, Q("30.465255 mm")))
sketch4.setExpression("Constraints[98]", "Params.sketch4_radius")
sketch4.setExpression("Constraints[99]", "Params.sketch4_width")
sketch4.setExpression("Constraints[100]", "Params.sketch4_height")
sketch4.setExpression("Constraints[101]", "Params.sketch4_height2")
sketch4.setExpression("Constraints[102]", "Params.sketch4_width2")
pad4 = body4.newObject("PartDesign::Pad", "Pad003")
pad4.Profile = sketch4
pad4.setExpression("Length", "Params.pad4_length")
body5 = doc.addObject("PartDesign::Body", "Body004")

# Sketch on YZ plane
sketch5 = body5.newObject("Sketcher::SketchObject", "Sketch004")
sketch5.AttachmentSupport = (doc.getObject("YZ_Plane004"), [""])
sketch5.MapMode = "FlatFace"
sketch5.AttachmentOffset = App.Placement(Vector(0, 0, -35), App.Rotation())
add_polygon(sketch5, [(29.5, 100), (29.5, 80), (26, 80), (26, 40), (29.5, 40), (29.5, 20), (26, 20), (26, 0), (-26, 0), (-26, 20), (-29.5, 20), (-29.5, 40), (-26, 40), (-26, 80), (-29.5, 80), (-29.5, 100), (-26, 100), (-26, 120), (26, 120), (26, 100)])  # lines 0-19
sketch5.addGeometry(Part.LineSegment(Vector(-1.4, 44.2, 0), Vector(-16.6, 9.1, 0)), False)  # 20
sketch5.addGeometry(Part.ArcOfCircle(Part.Circle(Vector(-15.2, 8.5, 0), Vector(0, 0, 1), 1.5), math.radians(157), math.radians(270)), False)  # 21
sketch5.addGeometry(Part.LineSegment(Vector(-15.2, 7, 0), Vector(15.2, 7, 0)), False)  # 22
sketch5.addGeometry(Part.ArcOfCircle(Part.Circle(Vector(15.2, 8.5, 0), Vector(0, 0, 1), 1.5), math.radians(-90), math.radians(23)), False)  # 23
sketch5.addGeometry(Part.LineSegment(Vector(16.6, 9.1, 0), Vector(1.4, 44.2, 0)), False)  # 24
sketch5.addGeometry(Part.ArcOfCircle(Part.Circle(Vector(0, 43.7, 0), Vector(0, 0, 1), 1.5), math.radians(23), math.radians(157)), False)  # 25
sketch5.addGeometry(Part.LineSegment(Vector(19, 36, 0), Vector(19, 84, 0)), False)  # 26
sketch5.addGeometry(Part.ArcOfCircle(Part.Circle(Vector(17.5, 84, 0), Vector(0, 0, 1), 1.5), math.radians(0), math.radians(157)), False)  # 27
sketch5.addGeometry(Part.LineSegment(Vector(16.1, 84.6, 0), Vector(5.7, 60.6, 0)), False)  # 28
sketch5.addGeometry(Part.ArcOfCircle(Part.Circle(Vector(7.1, 60, 0), Vector(0, 0, 1), 1.5), math.radians(157), math.radians(203)), False)  # 29
sketch5.addGeometry(Part.LineSegment(Vector(5.7, 59.4, 0), Vector(16.1, 35.4, 0)), False)  # 30
sketch5.addGeometry(Part.ArcOfCircle(Part.Circle(Vector(17.5, 36, 0), Vector(0, 0, 1), 1.5), math.radians(-157), math.radians(0)), False)  # 31
sketch5.addGeometry(Part.ArcOfCircle(Part.Circle(Vector(-17.5, 36, 0), Vector(0, 0, 1), 1.5), math.radians(180), math.radians(337)), False)  # 32
sketch5.addGeometry(Part.LineSegment(Vector(-16.1, 35.4, 0), Vector(-5.7, 59.4, 0)), False)  # 33
sketch5.addGeometry(Part.ArcOfCircle(Part.Circle(Vector(-7.1, 60, 0), Vector(0, 0, 1), 1.5), math.radians(-23), math.radians(23)), False)  # 34
sketch5.addGeometry(Part.LineSegment(Vector(-5.7, 60.6, 0), Vector(-16.1, 84.6, 0)), False)  # 35
sketch5.addGeometry(Part.ArcOfCircle(Part.Circle(Vector(-17.5, 84, 0), Vector(0, 0, 1), 1.5), math.radians(23), math.radians(180)), False)  # 36
sketch5.addGeometry(Part.LineSegment(Vector(-19, 84, 0), Vector(-19, 36, 0)), False)  # 37
sketch5.addGeometry(Part.ArcOfCircle(Part.Circle(Vector(0, 76.3, 0), Vector(0, 0, 1), 1.5), math.radians(-157), math.radians(-23)), False)  # 38
sketch5.addGeometry(Part.LineSegment(Vector(1.4, 75.8, 0), Vector(16.6, 110.9, 0)), False)  # 39
sketch5.addGeometry(Part.ArcOfCircle(Part.Circle(Vector(15.2, 111.5, 0), Vector(0, 0, 1), 1.5), math.radians(-23), math.radians(90)), False)  # 40
sketch5.addGeometry(Part.LineSegment(Vector(15.2, 113, 0), Vector(-15.2, 113, 0)), False)  # 41
sketch5.addGeometry(Part.ArcOfCircle(Part.Circle(Vector(-15.2, 111.5, 0), Vector(0, 0, 1), 1.5), math.radians(90), math.radians(203)), False)  # 42
sketch5.addGeometry(Part.LineSegment(Vector(-16.6, 110.9, 0), Vector(-1.4, 75.8, 0)), False)  # 43
sketch5.addConstraint(Sketcher.Constraint("Tangent", 20, 2, 21, 1))
sketch5.addConstraint(Sketcher.Constraint("Tangent", 21, 2, 22, 1))
sketch5.addConstraint(Sketcher.Constraint("Tangent", 22, 2, 23, 1))
sketch5.addConstraint(Sketcher.Constraint("Tangent", 23, 2, 24, 1))
sketch5.addConstraint(Sketcher.Constraint("Tangent", 24, 2, 25, 1))
sketch5.addConstraint(Sketcher.Constraint("Tangent", 25, 2, 20, 1))
sketch5.addConstraint(Sketcher.Constraint("Tangent", 26, 2, 27, 1))
sketch5.addConstraint(Sketcher.Constraint("Tangent", 27, 2, 28, 1))
sketch5.addConstraint(Sketcher.Constraint("Tangent", 28, 2, 29, 1))
sketch5.addConstraint(Sketcher.Constraint("Tangent", 29, 2, 30, 1))
sketch5.addConstraint(Sketcher.Constraint("Tangent", 30, 2, 31, 1))
sketch5.addConstraint(Sketcher.Constraint("Tangent", 31, 2, 26, 1))
sketch5.addConstraint(Sketcher.Constraint("Tangent", 32, 2, 33, 1))
sketch5.addConstraint(Sketcher.Constraint("Tangent", 33, 2, 34, 1))
sketch5.addConstraint(Sketcher.Constraint("Tangent", 34, 2, 35, 1))
sketch5.addConstraint(Sketcher.Constraint("Tangent", 35, 2, 36, 1))
sketch5.addConstraint(Sketcher.Constraint("Tangent", 36, 2, 37, 1))
sketch5.addConstraint(Sketcher.Constraint("Tangent", 37, 2, 32, 1))
sketch5.addConstraint(Sketcher.Constraint("Tangent", 38, 2, 39, 1))
sketch5.addConstraint(Sketcher.Constraint("Tangent", 39, 2, 40, 1))
sketch5.addConstraint(Sketcher.Constraint("Tangent", 40, 2, 41, 1))
sketch5.addConstraint(Sketcher.Constraint("Tangent", 41, 2, 42, 1))
sketch5.addConstraint(Sketcher.Constraint("Tangent", 42, 2, 43, 1))
sketch5.addConstraint(Sketcher.Constraint("Tangent", 43, 2, 38, 1))
sketch5.addConstraint(Sketcher.Constraint("Vertical", 0))
sketch5.addConstraint(Sketcher.Constraint("Horizontal", 1))
sketch5.addConstraint(Sketcher.Constraint("Vertical", 2))
sketch5.addConstraint(Sketcher.Constraint("Horizontal", 3))
sketch5.addConstraint(Sketcher.Constraint("Vertical", 4))
sketch5.addConstraint(Sketcher.Constraint("Horizontal", 5))
sketch5.addConstraint(Sketcher.Constraint("Vertical", 6))
sketch5.addConstraint(Sketcher.Constraint("Horizontal", 7))
sketch5.addConstraint(Sketcher.Constraint("Vertical", 8))
sketch5.addConstraint(Sketcher.Constraint("Horizontal", 9))
sketch5.addConstraint(Sketcher.Constraint("Vertical", 10))
sketch5.addConstraint(Sketcher.Constraint("Horizontal", 11))
sketch5.addConstraint(Sketcher.Constraint("Vertical", 12))
sketch5.addConstraint(Sketcher.Constraint("Horizontal", 13))
sketch5.addConstraint(Sketcher.Constraint("Vertical", 14))
sketch5.addConstraint(Sketcher.Constraint("Horizontal", 15))
sketch5.addConstraint(Sketcher.Constraint("Vertical", 16))
sketch5.addConstraint(Sketcher.Constraint("Horizontal", 17))
sketch5.addConstraint(Sketcher.Constraint("Vertical", 18))
sketch5.addConstraint(Sketcher.Constraint("Horizontal", 19))
sketch5.addConstraint(Sketcher.Constraint("Horizontal", 22))
sketch5.addConstraint(Sketcher.Constraint("Vertical", 26))
sketch5.addConstraint(Sketcher.Constraint("Vertical", 37))
sketch5.addConstraint(Sketcher.Constraint("Horizontal", 41))
sketch5.addConstraint(Sketcher.Constraint("Equal", 21, 23))
sketch5.addConstraint(Sketcher.Constraint("Equal", 23, 25))
sketch5.addConstraint(Sketcher.Constraint("Equal", 25, 27))
sketch5.addConstraint(Sketcher.Constraint("Equal", 27, 31))
sketch5.addConstraint(Sketcher.Constraint("Equal", 31, 32))
sketch5.addConstraint(Sketcher.Constraint("Equal", 29, 34))
sketch5.addConstraint(Sketcher.Constraint("Equal", 32, 36))
sketch5.addConstraint(Sketcher.Constraint("Equal", 36, 38))
sketch5.addConstraint(Sketcher.Constraint("Equal", 38, 40))
sketch5.addConstraint(Sketcher.Constraint("Equal", 40, 42))
sketch5.addConstraint(Sketcher.Constraint("Symmetric", 6, 2, 7, 2, -1, 1))
sketch5.addConstraint(Sketcher.Constraint("Symmetric", 31, 3, 32, 3, -2))
sketch5.addConstraint(Sketcher.Constraint("Symmetric", 29, 3, 34, 3, -2))
sketch5.addConstraint(Sketcher.Constraint("Symmetric", 4, 2, 9, 2, -2))
sketch5.addConstraint(Sketcher.Constraint("Symmetric", 2, 2, 11, 2, -2))
sketch5.addConstraint(Sketcher.Constraint("Symmetric", 0, 2, 13, 2, -2))
sketch5.addConstraint(Sketcher.Constraint("Symmetric", 15, 2, 18, 2, -2))
sketch5.addConstraint(Sketcher.Constraint("Symmetric", 20, 2, 23, 2, -2))
sketch5.addConstraint(Sketcher.Constraint("Symmetric", 39, 2, 42, 2, -2))
sketch5.addConstraint(Sketcher.Constraint("Parallel", 20, 28))
sketch5.addConstraint(Sketcher.Constraint("Parallel", 24, 30))
sketch5.addConstraint(Sketcher.Constraint("Parallel", 30, 35))
sketch5.addConstraint(Sketcher.Constraint("Parallel", 33, 39))
sketch5.addConstraint(Sketcher.Constraint("Vertical", 21, 3, 42, 3))
sketch5.addConstraint(Sketcher.Constraint("Vertical", 0, 2, 3, 2))
sketch5.addConstraint(Sketcher.Constraint("Vertical", 2, 2, 5, 2))
sketch5.addConstraint(Sketcher.Constraint("Vertical", 12, 2, 15, 2))
sketch5.addConstraint(Sketcher.Constraint("Equal", 0, 4))
sketch5.addConstraint(Sketcher.Constraint("Equal", 4, 6))
sketch5.addConstraint(Sketcher.Constraint("Equal", 14, 16))
sketch5.addConstraint(Sketcher.Constraint("Radius", 21, Q("1.5 mm")))
sketch5.addConstraint(Sketcher.Constraint("DistanceX", 7, 2, 7, 1, Q("52 mm")))
sketch5.addConstraint(Sketcher.Constraint("DistanceY", 0, 2, 0, 1, Q("20 mm")))
sketch5.addConstraint(Sketcher.Constraint("DistanceY", 2, 2, 2, 1, Q("40 mm")))
sketch5.addConstraint(Sketcher.Constraint("DistanceX", 1, 2, 1, 1, Q("3.5 mm")))
sketch5.addConstraint(Sketcher.Constraint("DistanceY", -1, 1, 29, 3, Q("60 mm")))
sketch5.addConstraint(Sketcher.Constraint("DistanceY", -1, 1, 21, 2, Q("7 mm")))
sketch5.addConstraint(Sketcher.Constraint("DistanceX", -1, 1, 26, 2, Q("19 mm")))
sketch5.addConstraint(Sketcher.Constraint("DistanceY", -1, 1, 40, 2, Q("113 mm")))
sketch5.addConstraint(Sketcher.Constraint("Radius", 29, Q("1.499994 mm")))
sketch5.addConstraint(Sketcher.Constraint("DistanceX", 24, 2, 29, 3, Q("5.707699 mm")))
sketch5.addConstraint(Sketcher.Constraint("Distance", 20, Q("38.310722 mm")))
sketch5.addConstraint(Sketcher.Constraint("DistanceX", 22, 1, 22, 2, Q("30.465255 mm")))
sketch5.setExpression("Constraints[98]", "Params.sketch5_radius")
sketch5.setExpression("Constraints[99]", "Params.sketch5_width")
sketch5.setExpression("Constraints[100]", "Params.sketch5_height")
sketch5.setExpression("Constraints[101]", "Params.sketch5_height2")
sketch5.setExpression("Constraints[102]", "Params.sketch5_width2")
pad5 = body5.newObject("PartDesign::Pad", "Pad004")
pad5.Profile = sketch5
pad5.setExpression("Length", "Params.pad5_length")
pad5.Reversed = True

doc.recompute()
